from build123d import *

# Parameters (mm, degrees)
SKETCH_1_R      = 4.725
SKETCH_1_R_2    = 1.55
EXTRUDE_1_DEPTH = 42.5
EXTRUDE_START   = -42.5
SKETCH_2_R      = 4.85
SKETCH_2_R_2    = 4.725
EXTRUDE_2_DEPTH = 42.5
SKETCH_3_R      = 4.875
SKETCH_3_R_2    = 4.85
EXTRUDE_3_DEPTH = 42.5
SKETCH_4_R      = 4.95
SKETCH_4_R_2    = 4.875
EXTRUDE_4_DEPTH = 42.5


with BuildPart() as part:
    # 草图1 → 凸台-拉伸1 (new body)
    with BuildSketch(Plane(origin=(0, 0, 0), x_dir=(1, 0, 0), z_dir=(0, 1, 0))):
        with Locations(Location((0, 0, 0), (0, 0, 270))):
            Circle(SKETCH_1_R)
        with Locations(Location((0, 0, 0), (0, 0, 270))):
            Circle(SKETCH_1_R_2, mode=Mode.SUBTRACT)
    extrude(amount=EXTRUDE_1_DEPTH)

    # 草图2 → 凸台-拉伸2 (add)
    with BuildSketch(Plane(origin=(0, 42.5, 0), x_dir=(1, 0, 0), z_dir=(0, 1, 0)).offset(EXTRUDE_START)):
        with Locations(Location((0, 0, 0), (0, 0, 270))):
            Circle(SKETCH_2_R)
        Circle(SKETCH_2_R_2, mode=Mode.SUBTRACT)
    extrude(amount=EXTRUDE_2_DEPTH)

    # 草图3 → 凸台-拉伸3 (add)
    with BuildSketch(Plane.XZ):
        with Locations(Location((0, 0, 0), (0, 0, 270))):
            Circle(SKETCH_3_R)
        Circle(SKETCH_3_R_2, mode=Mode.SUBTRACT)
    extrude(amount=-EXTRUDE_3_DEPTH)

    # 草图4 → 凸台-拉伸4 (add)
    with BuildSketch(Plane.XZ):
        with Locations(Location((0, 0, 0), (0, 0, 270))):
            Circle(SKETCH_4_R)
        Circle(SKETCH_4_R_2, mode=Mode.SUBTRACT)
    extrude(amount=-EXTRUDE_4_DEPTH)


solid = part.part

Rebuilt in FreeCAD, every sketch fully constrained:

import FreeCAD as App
import Part
import Sketcher
Q = App.Units.Quantity

doc = App.newDocument("Part")
body = doc.addObject("PartDesign::Body", "Body")

# Sketch on XZ plane
sketch1 = doc.addObject("Sketcher::SketchObject", "Sketch")
body.addObject(sketch1)
sketch1.AttachmentSupport = (doc.XZ_Plane, [""])
sketch1.MapMode = "FlatFace"
sketch1.addGeometry([
    Part.Circle(App.Vector(0, 0, 0), App.Vector(0, 0, 1), 4.7),
    Part.Circle(App.Vector(0, 0, 0), App.Vector(0, 0, 1), 1.6),
], False)
sketch1.addConstraint([
    Sketcher.Constraint("Coincident", 0, 3, -1, 1),
    Sketcher.Constraint("Coincident", 1, 3, -1, 1),
    Sketcher.Constraint("Diameter", 1, Q("3.1 mm")),
    Sketcher.Constraint("Diameter", 0, Q("9.45 mm")),
])
pad1 = doc.addObject("PartDesign::Pad", "Pad")
body.addObject(pad1)
pad1.Profile = sketch1
pad1.Length = 42.5
pad1.Reversed = True

# Sketch on XZ plane
sketch2 = doc.addObject("Sketcher::SketchObject", "Sketch001")
body.addObject(sketch2)
sketch2.AttachmentSupport = (doc.XZ_Plane, [""])
sketch2.MapMode = "FlatFace"
sketch2.addGeometry([
    Part.Circle(App.Vector(0, 0, 0), App.Vector(0, 0, 1), 4.8),
    Part.Circle(App.Vector(0, 0, 0), App.Vector(0, 0, 1), 4.7),
], False)
sketch2.addConstraint([
    Sketcher.Constraint("Coincident", 0, 3, -1, 1),
    Sketcher.Constraint("Coincident", 1, 3, -1, 1),
    Sketcher.Constraint("Diameter", 0, Q("9.7 mm")),
    Sketcher.Constraint("Diameter", 1, Q("9.45 mm")),
])
pad2 = doc.addObject("PartDesign::Pad", "Pad001")
body.addObject(pad2)
pad2.Profile = sketch2
pad2.Length = 42.5
pad2.Reversed = True

# Sketch on XZ plane
sketch3 = doc.addObject("Sketcher::SketchObject", "Sketch002")
body.addObject(sketch3)
sketch3.AttachmentSupport = (doc.XZ_Plane, [""])
sketch3.MapMode = "FlatFace"
sketch3.addGeometry([
    Part.Circle(App.Vector(0, 0, 0), App.Vector(0, 0, 1), 4.9),
    Part.Circle(App.Vector(0, 0, 0), App.Vector(0, 0, 1), 4.8),
], False)
sketch3.addConstraint([
    Sketcher.Constraint("Coincident", 0, 3, -1, 1),
    Sketcher.Constraint("Coincident", 1, 3, -1, 1),
    Sketcher.Constraint("Diameter", 1, Q("9.7 mm")),
    Sketcher.Constraint("Diameter", 0, Q("9.75 mm")),
])
pad3 = doc.addObject("PartDesign::Pad", "Pad002")
body.addObject(pad3)
pad3.Profile = sketch3
pad3.Length = 42.5
pad3.Reversed = True

# Sketch on XZ plane
sketch4 = doc.addObject("Sketcher::SketchObject", "Sketch003")
body.addObject(sketch4)
sketch4.AttachmentSupport = (doc.XZ_Plane, [""])
sketch4.MapMode = "FlatFace"
sketch4.addGeometry([
    Part.Circle(App.Vector(0, 0, 0), App.Vector(0, 0, 1), 5),
    Part.Circle(App.Vector(0, 0, 0), App.Vector(0, 0, 1), 4.9),
], False)
sketch4.addConstraint([
    Sketcher.Constraint("Coincident", 0, 3, -1, 1),
    Sketcher.Constraint("Coincident", 1, 3, -1, 1),
    Sketcher.Constraint("Diameter", 0, Q("9.9 mm")),
    Sketcher.Constraint("Diameter", 1, Q("9.75 mm")),
])
pad4 = doc.addObject("PartDesign::Pad", "Pad003")
body.addObject(pad4)
pad4.Profile = sketch4
pad4.Length = 42.5
pad4.Reversed = True

doc.recompute()
